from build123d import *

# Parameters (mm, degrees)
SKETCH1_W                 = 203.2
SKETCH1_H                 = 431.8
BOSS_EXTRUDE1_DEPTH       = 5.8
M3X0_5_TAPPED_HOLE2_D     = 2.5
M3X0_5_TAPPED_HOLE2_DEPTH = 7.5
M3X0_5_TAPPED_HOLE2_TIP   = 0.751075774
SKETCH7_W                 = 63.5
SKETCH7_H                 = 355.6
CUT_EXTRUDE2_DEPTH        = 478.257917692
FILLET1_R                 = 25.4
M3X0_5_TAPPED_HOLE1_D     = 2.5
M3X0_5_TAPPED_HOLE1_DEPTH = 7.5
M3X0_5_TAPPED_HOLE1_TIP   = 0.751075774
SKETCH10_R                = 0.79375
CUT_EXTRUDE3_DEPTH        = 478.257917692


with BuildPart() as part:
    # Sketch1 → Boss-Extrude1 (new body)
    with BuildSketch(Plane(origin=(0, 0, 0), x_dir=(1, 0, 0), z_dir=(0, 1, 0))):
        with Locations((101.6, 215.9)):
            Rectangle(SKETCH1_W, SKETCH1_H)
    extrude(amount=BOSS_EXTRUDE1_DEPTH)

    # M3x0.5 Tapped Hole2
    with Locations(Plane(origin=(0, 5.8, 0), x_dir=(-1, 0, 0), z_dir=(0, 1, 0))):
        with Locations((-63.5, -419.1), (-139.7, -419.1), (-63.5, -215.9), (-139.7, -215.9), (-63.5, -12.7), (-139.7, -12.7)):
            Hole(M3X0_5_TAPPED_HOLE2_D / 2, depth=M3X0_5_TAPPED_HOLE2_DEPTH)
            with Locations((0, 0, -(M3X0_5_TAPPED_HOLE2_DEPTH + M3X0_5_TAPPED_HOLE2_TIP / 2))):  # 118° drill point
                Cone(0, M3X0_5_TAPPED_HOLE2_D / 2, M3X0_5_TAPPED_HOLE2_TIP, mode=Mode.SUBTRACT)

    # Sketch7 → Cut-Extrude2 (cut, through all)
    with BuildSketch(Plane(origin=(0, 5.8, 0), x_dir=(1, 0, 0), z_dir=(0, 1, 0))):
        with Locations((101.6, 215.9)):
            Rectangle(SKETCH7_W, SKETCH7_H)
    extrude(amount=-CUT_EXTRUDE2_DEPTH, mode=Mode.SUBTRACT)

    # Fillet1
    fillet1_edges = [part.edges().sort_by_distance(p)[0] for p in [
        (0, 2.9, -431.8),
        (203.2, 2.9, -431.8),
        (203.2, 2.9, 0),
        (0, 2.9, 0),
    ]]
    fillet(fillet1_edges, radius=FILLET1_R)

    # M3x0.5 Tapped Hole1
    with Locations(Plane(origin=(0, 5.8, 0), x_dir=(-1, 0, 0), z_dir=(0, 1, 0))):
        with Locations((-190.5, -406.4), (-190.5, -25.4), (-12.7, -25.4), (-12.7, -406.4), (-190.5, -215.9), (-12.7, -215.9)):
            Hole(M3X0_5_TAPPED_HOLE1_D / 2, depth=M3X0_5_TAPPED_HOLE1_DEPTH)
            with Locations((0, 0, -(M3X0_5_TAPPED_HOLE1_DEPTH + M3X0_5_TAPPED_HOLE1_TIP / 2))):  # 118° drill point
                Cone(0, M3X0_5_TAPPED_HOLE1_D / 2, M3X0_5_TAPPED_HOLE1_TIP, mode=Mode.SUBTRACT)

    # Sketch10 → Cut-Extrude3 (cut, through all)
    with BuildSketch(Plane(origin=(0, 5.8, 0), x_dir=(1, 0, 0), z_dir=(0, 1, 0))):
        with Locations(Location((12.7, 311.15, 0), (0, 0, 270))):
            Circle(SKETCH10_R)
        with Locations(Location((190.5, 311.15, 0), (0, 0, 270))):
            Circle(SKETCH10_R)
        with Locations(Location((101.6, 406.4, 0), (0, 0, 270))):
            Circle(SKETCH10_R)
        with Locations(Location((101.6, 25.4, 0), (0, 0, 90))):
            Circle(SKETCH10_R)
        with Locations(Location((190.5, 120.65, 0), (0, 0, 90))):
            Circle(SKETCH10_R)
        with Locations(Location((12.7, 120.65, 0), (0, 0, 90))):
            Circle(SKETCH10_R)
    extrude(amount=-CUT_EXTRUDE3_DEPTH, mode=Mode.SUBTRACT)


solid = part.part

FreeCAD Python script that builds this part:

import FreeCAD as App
import Part
import Sketcher

V = App.Vector
Q = App.Units.Quantity


def edges_at(feature, points):
    """Names of the edges that pass closest to the given points."""
    edges = feature.Shape.Edges
    near = lambda p: min(range(len(edges)), key=lambda i: edges[i].distToShape(Part.Vertex(*p))[0])
    return sorted({f"Edge{near(p) + 1}" for p in points})

doc = App.newDocument("Part")
body = doc.addObject("PartDesign::Body", "Body")

sketch1 = body.newObject("Sketcher::SketchObject", "Sketch")
sketch1.AttachmentSupport = (doc.getObject("XZ_Plane"), [""])
sketch1.MapMode = "FlatFace"
sketch1.addGeometry([
    Part.LineSegment(V(0, -432, 0), V(0, 0, 0)),
    Part.LineSegment(V(0, 0, 0), V(203, 0, 0)),
    Part.LineSegment(V(203, 0, 0), V(203, -432, 0)),
    Part.LineSegment(V(203, -432, 0), V(0, -432, 0)),
], False)
sketch1.addConstraint([
    Sketcher.Constraint("Coincident", 0, 2, 1, 1),
    Sketcher.Constraint("Coincident", 1, 2, 2, 1),
    Sketcher.Constraint("Coincident", 2, 2, 3, 1),
    Sketcher.Constraint("Coincident", 3, 2, 0, 1),
    Sketcher.Constraint("Vertical", 0),
    Sketcher.Constraint("Horizontal", 1),
    Sketcher.Constraint("Vertical", 2),
    Sketcher.Constraint("Horizontal", 3),
    Sketcher.Constraint("Coincident", 0, 2, -1, 1),
    Sketcher.Constraint("DistanceX", 1, 1, 1, 2, Q("8 in")),
    Sketcher.Constraint("DistanceY", 0, 1, 0, 2, Q("17 in")),
])
pad1 = body.newObject("PartDesign::Pad", "Pad")
pad1.Profile = sketch1
pad1.Length = 5.8
pad1.Reversed = True

sketch2 = body.newObject("Sketcher::SketchObject", "Sketch001")
sketch2.AttachmentSupport = (doc.getObject("XZ_Plane"), [""])
sketch2.MapMode = "FlatFace"
sketch2.AttachmentOffset = App.Placement(V(0, 0, -5.8), App.Rotation())
sketch2.addGeometry([
    Part.Circle(V(63.5, -419.1, 0), V(0, 0, 1), 1.2),
    Part.Circle(V(139.7, -419.1, 0), V(0, 0, 1), 1.2),
    Part.Circle(V(63.5, -215.9, 0), V(0, 0, 1), 1.2),
    Part.Circle(V(139.7, -215.9, 0), V(0, 0, 1), 1.2),
    Part.Circle(V(63.5, -12.7, 0), V(0, 0, 1), 1.2),
    Part.Circle(V(139.7, -12.7, 0), V(0, 0, 1), 1.2),
], False)
sketch2.addConstraint([
    Sketcher.Constraint("Equal", 0, 1),
    Sketcher.Constraint("Equal", 1, 2),
    Sketcher.Constraint("Equal", 2, 3),
    Sketcher.Constraint("Equal", 3, 4),
    Sketcher.Constraint("Equal", 4, 5),
    Sketcher.Constraint("Horizontal", 0, 3, 1, 3),
    Sketcher.Constraint("Horizontal", 2, 3, 3, 3),
    Sketcher.Constraint("Horizontal", 4, 3, 5, 3),
    Sketcher.Constraint("Vertical", 0, 3, 2, 3),
    Sketcher.Constraint("Vertical", 1, 3, 3, 3),
    Sketcher.Constraint("Vertical", 2, 3, 4, 3),
    Sketcher.Constraint("Vertical", 3, 3, 5, 3),
    Sketcher.Constraint("DistanceX", 0, 3, 1, 3, Q("3 in")),
    Sketcher.Constraint("DistanceY", 0, 3, 2, 3, Q("8 in")),
    Sketcher.Constraint("DistanceY", 2, 3, 4, 3, Q("8 in")),
    Sketcher.Constraint("DistanceX", -1, 1, 0, 3, Q("2.5 in")),
    Sketcher.Constraint("DistanceY", 0, 3, -1, 1, Q("16.5 in")),
    Sketcher.Constraint("Diameter", 0, Q("2.5 mm")),
])
doc.recompute()
hole = body.newObject("PartDesign::Hole", "Hole")
hole.Profile = sketch2
hole.ThreadType = "None"
hole.Diameter = 2.5
hole.DepthType = "Dimension"
hole.Depth = 7.5
hole.DrillPoint = "Angled"
hole.DrillPointAngle = 118
hole.Reversed = True

sketch3 = body.newObject("Sketcher::SketchObject", "Sketch002")
sketch3.AttachmentSupport = (doc.getObject("XZ_Plane"), [""])
sketch3.MapMode = "FlatFace"
sketch3.AttachmentOffset = App.Placement(V(0, 0, -5.8), App.Rotation())
sketch3.addGeometry([
    Part.LineSegment(V(70, -394, 0), V(70, -38, 0)),
    Part.LineSegment(V(70, -38, 0), V(133, -38, 0)),
    Part.LineSegment(V(133, -38, 0), V(133, -394, 0)),
    Part.LineSegment(V(133, -394, 0), V(70, -394, 0)),
], False)
sketch3.addConstraint([
    Sketcher.Constraint("Coincident", 0, 2, 1, 1),
    Sketcher.Constraint("Coincident", 1, 2, 2, 1),
    Sketcher.Constraint("Coincident", 2, 2, 3, 1),
    Sketcher.Constraint("Coincident", 3, 2, 0, 1),
    Sketcher.Constraint("Vertical", 0),
    Sketcher.Constraint("Horizontal", 1),
    Sketcher.Constraint("Vertical", 2),
    Sketcher.Constraint("Horizontal", 3),
    Sketcher.Constraint("DistanceY", 0, 1, 0, 2, Q("14 in")),
    Sketcher.Constraint("DistanceX", 1, 1, 1, 2, Q("2.5 in")),
    Sketcher.Constraint("DistanceY", 0, 2, -1, 1, Q("1.5 in")),
    Sketcher.Constraint("DistanceX", -1, 1, 0, 2, Q("2.75 in")),
])
pocket1 = body.newObject("PartDesign::Pocket", "Pocket")
pocket1.Profile = sketch3
pocket1.Type = "ThroughAll"
pocket1.Reversed = True
doc.recompute()

fillet = body.newObject("PartDesign::Fillet", "Fillet")
fillet.Base = (pocket1, edges_at(pocket1, [
    (0, 2.9, -431.8),
    (203.2, 2.9, -431.8),
    (203.2, 2.9, 0),
    (0, 2.9, 0),
]))
fillet.Radius = Q("1 in")

sketch4 = body.newObject("Sketcher::SketchObject", "Sketch003")
sketch4.AttachmentSupport = (doc.getObject("XZ_Plane"), [""])
sketch4.MapMode = "FlatFace"
sketch4.AttachmentOffset = App.Placement(V(0, 0, -5.8), App.Rotation())
sketch4.addGeometry([
    Part.Circle(V(190.5, -406.4, 0), V(0, 0, 1), 1.2),
    Part.Circle(V(190.5, -25.4, 0), V(0, 0, 1), 1.2),
    Part.Circle(V(12.7, -25.4, 0), V(0, 0, 1), 1.2),
    Part.Circle(V(12.7, -406.4, 0), V(0, 0, 1), 1.2),
    Part.Circle(V(190.5, -215.9, 0), V(0, 0, 1), 1.2),
    Part.Circle(V(12.7, -215.9, 0), V(0, 0, 1), 1.2),
], False)
sketch4.addConstraint([
    Sketcher.Constraint("Equal", 0, 1),
    Sketcher.Constraint("Equal", 1, 2),
    Sketcher.Constraint("Equal", 2, 3),
    Sketcher.Constraint("Equal", 3, 4),
    Sketcher.Constraint("Equal", 4, 5),
    Sketcher.Constraint("Horizontal", 1, 3, 2, 3),
    Sketcher.Constraint("Horizontal", 0, 3, 3, 3),
    Sketcher.Constraint("Horizontal", 4, 3, 5, 3),
    Sketcher.Constraint("Vertical", 0, 3, 1, 3),
    Sketcher.Constraint("Vertical", 2, 3, 3, 3),
    Sketcher.Constraint("Vertical", 1, 3, 4, 3),
    Sketcher.Constraint("Vertical", 3, 3, 5, 3),
    Sketcher.Constraint("DistanceY", 0, 3, -1, 1, Q("16 in")),
    Sketcher.Constraint("DistanceY", 1, 3, -1, 1, Q("1 in")),
    Sketcher.Constraint("DistanceX", 2, 3, 1, 3, Q("7 in")),
    Sketcher.Constraint("DistanceX", -1, 1, 0, 3, Q("7.5 in")),
    Sketcher.Constraint("DistanceY", 4, 3, -1, 1, Q("8.5 in")),
    Sketcher.Constraint("Diameter", 0, Q("2.5 mm")),
])
doc.recompute()
hole2 = body.newObject("PartDesign::Hole", "Hole001")
hole2.Profile = sketch4
hole2.ThreadType = "None"
hole2.Diameter = 2.5
hole2.DepthType = "Dimension"
hole2.Depth = 7.5
hole2.DrillPoint = "Angled"
hole2.DrillPointAngle = 118
hole2.Reversed = True

sketch5 = body.newObject("Sketcher::SketchObject", "Sketch004")
sketch5.AttachmentSupport = (doc.getObject("XZ_Plane"), [""])
sketch5.MapMode = "FlatFace"
sketch5.AttachmentOffset = App.Placement(V(0, 0, -5.8), App.Rotation())
sketch5.addGeometry([
    Part.Circle(V(12.7, -311.1, 0), V(0, 0, 1), 0.8),
    Part.Circle(V(190.5, -311.1, 0), V(0, 0, 1), 0.8),
    Part.Circle(V(101.6, -406.4, 0), V(0, 0, 1), 0.8),
    Part.Circle(V(101.6, -25.4, 0), V(0, 0, 1), 0.8),
    Part.Circle(V(190.5, -120.7, 0), V(0, 0, 1), 0.8),
    Part.Circle(V(12.7, -120.7, 0), V(0, 0, 1), 0.8),
], False)
sketch5.addConstraint([
    Sketcher.Constraint("Equal", 0, 1),
    Sketcher.Constraint("Equal", 1, 2),
    Sketcher.Constraint("Equal", 2, 3),
    Sketcher.Constraint("Equal", 3, 4),
    Sketcher.Constraint("Equal", 4, 5),
    Sketcher.Constraint("Horizontal", 0, 3, 1, 3),
    Sketcher.Constraint("Horizontal", 4, 3, 5, 3),
    Sketcher.Constraint("Vertical", 2, 3, 3, 3),
    Sketcher.Constraint("Vertical", 1, 3, 4, 3),
    Sketcher.Constraint("Vertical", 0, 3, 5, 3),
    Sketcher.Constraint("Diameter", 0, Q("0.0625 in")),
    Sketcher.Constraint("DistanceX", -1, 1, 2, 3, Q("4 in")),
    Sketcher.Constraint("DistanceY", 2, 3, -1, 1, Q("16 in")),
    Sketcher.Constraint("DistanceY", 3, 3, -1, 1, Q("1 in")),
    Sketcher.Constraint("DistanceX", 0, 3, 1, 3, Q("7 in")),
    Sketcher.Constraint("DistanceX", -1, 1, 0, 3, Q("0.5 in")),
    Sketcher.Constraint("DistanceY", 1, 3, 4, 3, Q("7.5 in")),
    Sketcher.Constraint("DistanceY", 0, 3, -1, 1, Q("12.25 in")),
])
pocket2 = body.newObject("PartDesign::Pocket", "Pocket001")
pocket2.Profile = sketch5
pocket2.Type = "ThroughAll"
pocket2.Reversed = True

doc.recompute()
